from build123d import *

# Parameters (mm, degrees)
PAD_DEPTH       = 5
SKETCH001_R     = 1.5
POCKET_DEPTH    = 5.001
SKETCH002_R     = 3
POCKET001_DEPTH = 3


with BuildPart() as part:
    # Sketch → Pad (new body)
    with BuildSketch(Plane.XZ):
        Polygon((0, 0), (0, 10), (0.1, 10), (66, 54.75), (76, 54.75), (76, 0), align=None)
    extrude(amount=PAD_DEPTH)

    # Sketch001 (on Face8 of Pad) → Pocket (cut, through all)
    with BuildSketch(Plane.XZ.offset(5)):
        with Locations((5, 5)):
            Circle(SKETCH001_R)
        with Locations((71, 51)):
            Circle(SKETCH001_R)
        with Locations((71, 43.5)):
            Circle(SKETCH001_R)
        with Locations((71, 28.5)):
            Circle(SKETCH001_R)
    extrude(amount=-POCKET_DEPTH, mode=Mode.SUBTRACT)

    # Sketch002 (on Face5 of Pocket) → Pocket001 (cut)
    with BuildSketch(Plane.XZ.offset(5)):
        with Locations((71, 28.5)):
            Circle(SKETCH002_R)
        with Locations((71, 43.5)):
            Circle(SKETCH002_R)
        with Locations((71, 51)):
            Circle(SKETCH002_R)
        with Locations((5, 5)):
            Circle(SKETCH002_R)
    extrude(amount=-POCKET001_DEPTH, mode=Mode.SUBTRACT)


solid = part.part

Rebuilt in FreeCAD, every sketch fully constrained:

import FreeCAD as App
import Part
import Sketcher
from FreeCAD import Vector
Q = App.Units.Quantity


def add_polygon(sketch, points):
    """Adds a closed chain of lines whose ends are joined by coincident constraints."""
    first, n = sketch.GeometryCount, len(points)
    for a, b in zip(points, points[1:] + points[:1]):
        sketch.addGeometry(Part.LineSegment(App.Vector(*a, 0), App.Vector(*b, 0)), False)
    for i in range(n):
        sketch.addConstraint(Sketcher.Constraint("Coincident", first + i, 2, first + (i + 1) % n, 1))

doc = App.newDocument("Part")
params = doc.addObject("Spreadsheet::Sheet", "Params")
for row, (alias, value) in enumerate([
    ("sketch1_width", "76 mm"),
    ("sketch1_width2", "10 mm"),
    ("sketch1_width3", "0.1 mm"),
    ("sketch1_height", "54.75 mm"),
    ("pad1_length", "5 mm"),
    ("sketch2_diameter", "3 mm"),
    ("sketch3_diameter", "6 mm"),
    ("pocket2_length", "3 mm"),
], start=1):
    params.set(f"A{row}", alias)
    params.set(f"B{row}", "=" + value)
    params.setAlias(f"B{row}", alias)

body = doc.addObject("PartDesign::Body", "Body")

sketch1 = body.newObject("Sketcher::SketchObject", "Sketch")
sketch1.AttachmentSupport = (doc.getObject("XZ_Plane"), [""])
sketch1.MapMode = "FlatFace"
add_polygon(sketch1, [(0, 10), (0, 0), (76, 0), (76, 54.75), (66, 54.75), (0.1, 10)])
sketch1.addConstraint([
    Sketcher.Constraint("Vertical", 0),
    Sketcher.Constraint("Horizontal", 1),
    Sketcher.Constraint("Vertical", 2),
    Sketcher.Constraint("Horizontal", 3),
    Sketcher.Constraint("Horizontal", 5),
    Sketcher.Constraint("Coincident", 0, 2, -1, 1),
    Sketcher.Constraint("Equal", 3, 0),
    Sketcher.Constraint("DistanceX", 1, 1, 1, 2, Q("76 mm")),
    Sketcher.Constraint("DistanceX", 3, 2, 3, 1, Q("10 mm")),
    Sketcher.Constraint("DistanceX", 5, 2, 5, 1, Q("0.1 mm")),
    Sketcher.Constraint("DistanceY", 2, 1, 2, 2, Q("54.75 mm")),
])
sketch1.setExpression("Constraints[13]", "Params.sketch1_width")
sketch1.setExpression("Constraints[14]", "Params.sketch1_width2")
sketch1.setExpression("Constraints[15]", "Params.sketch1_width3")
sketch1.setExpression("Constraints[16]", "Params.sketch1_height")
pad1 = body.newObject("PartDesign::Pad", "Pad")
pad1.Profile = sketch1
pad1.setExpression("Length", "Params.pad1_length")

sketch2 = body.newObject("Sketcher::SketchObject", "Sketch001")
sketch2.AttachmentSupport = (doc.getObject("XZ_Plane"), [""])
sketch2.MapMode = "FlatFace"
sketch2.AttachmentOffset = App.Placement(Vector(0, 0, 5), App.Rotation())
sketch2.addGeometry([
    Part.Circle(Vector(5, 5, 0), Vector(0, 0, 1), 1.5),
    Part.Circle(Vector(71, 51, 0), Vector(0, 0, 1), 1.5),
    Part.Circle(Vector(71, 43.5, 0), Vector(0, 0, 1), 1.5),
    Part.Circle(Vector(71, 28.5, 0), Vector(0, 0, 1), 1.5),
], False)
sketch2.addConstraint([
    Sketcher.Constraint("Equal", 0, 1),
    Sketcher.Constraint("Equal", 1, 2),
    Sketcher.Constraint("Equal", 2, 3),
    Sketcher.Constraint("Vertical", 1, 3, 2, 3),
    Sketcher.Constraint("Vertical", 2, 3, 3, 3),
    Sketcher.Constraint("Diameter", 0, Q("3 mm")),
    Sketcher.Constraint("DistanceX", -1, 1, 0, 3, Q("5 mm")),
    Sketcher.Constraint("DistanceY", -1, 1, 0, 3, Q("5 mm")),
    Sketcher.Constraint("DistanceX", -1, 1, 1, 3, Q("71 mm")),
    Sketcher.Constraint("DistanceY", -1, 1, 1, 3, Q("51 mm")),
    Sketcher.Constraint("DistanceY", 3, 3, 2, 3, Q("15 mm")),
    Sketcher.Constraint("DistanceY", -1, 1, 2, 3, Q("43.5 mm")),
])
sketch2.setExpression("Constraints[5]", "Params.sketch2_diameter")
pocket1 = body.newObject("PartDesign::Pocket", "Pocket")
pocket1.Profile = sketch2
pocket1.Type = "ThroughAll"

sketch3 = body.newObject("Sketcher::SketchObject", "Sketch002")
sketch3.AttachmentSupport = (doc.getObject("XZ_Plane"), [""])
sketch3.MapMode = "FlatFace"
sketch3.AttachmentOffset = App.Placement(Vector(0, 0, 5), App.Rotation())
sketch3.addGeometry([
    Part.Circle(Vector(71, 28.5, 0), Vector(0, 0, 1), 3),
    Part.Circle(Vector(71, 43.5, 0), Vector(0, 0, 1), 3),
    Part.Circle(Vector(71, 51, 0), Vector(0, 0, 1), 3),
    Part.Circle(Vector(5, 5, 0), Vector(0, 0, 1), 3),
], False)
sketch3.addConstraint([
    Sketcher.Constraint("Equal", 0, 1),
    Sketcher.Constraint("Equal", 1, 2),
    Sketcher.Constraint("Equal", 2, 3),
    Sketcher.Constraint("Vertical", 0, 3, 1, 3),
    Sketcher.Constraint("Vertical", 1, 3, 2, 3),
    Sketcher.Constraint("Diameter", 0, Q("6 mm")),
    Sketcher.Constraint("DistanceX", -1, 1, 0, 3, Q("71 mm")),
    Sketcher.Constraint("DistanceY", -1, 1, 2, 3, Q("51 mm")),
    Sketcher.Constraint("DistanceX", -1, 1, 3, 3, Q("5 mm")),
    Sketcher.Constraint("DistanceY", -1, 1, 3, 3, Q("5 mm")),
    Sketcher.Constraint("DistanceY", 0, 3, 1, 3, Q("15 mm")),
    Sketcher.Constraint("DistanceY", -1, 1, 0, 3, Q("28.5 mm")),
])
sketch3.setExpression("Constraints[5]", "Params.sketch3_diameter")
pocket2 = body.newObject("PartDesign::Pocket", "Pocket001")
pocket2.Profile = sketch3
pocket2.setExpression("Length", "Params.pocket2_length")

doc.recompute()
